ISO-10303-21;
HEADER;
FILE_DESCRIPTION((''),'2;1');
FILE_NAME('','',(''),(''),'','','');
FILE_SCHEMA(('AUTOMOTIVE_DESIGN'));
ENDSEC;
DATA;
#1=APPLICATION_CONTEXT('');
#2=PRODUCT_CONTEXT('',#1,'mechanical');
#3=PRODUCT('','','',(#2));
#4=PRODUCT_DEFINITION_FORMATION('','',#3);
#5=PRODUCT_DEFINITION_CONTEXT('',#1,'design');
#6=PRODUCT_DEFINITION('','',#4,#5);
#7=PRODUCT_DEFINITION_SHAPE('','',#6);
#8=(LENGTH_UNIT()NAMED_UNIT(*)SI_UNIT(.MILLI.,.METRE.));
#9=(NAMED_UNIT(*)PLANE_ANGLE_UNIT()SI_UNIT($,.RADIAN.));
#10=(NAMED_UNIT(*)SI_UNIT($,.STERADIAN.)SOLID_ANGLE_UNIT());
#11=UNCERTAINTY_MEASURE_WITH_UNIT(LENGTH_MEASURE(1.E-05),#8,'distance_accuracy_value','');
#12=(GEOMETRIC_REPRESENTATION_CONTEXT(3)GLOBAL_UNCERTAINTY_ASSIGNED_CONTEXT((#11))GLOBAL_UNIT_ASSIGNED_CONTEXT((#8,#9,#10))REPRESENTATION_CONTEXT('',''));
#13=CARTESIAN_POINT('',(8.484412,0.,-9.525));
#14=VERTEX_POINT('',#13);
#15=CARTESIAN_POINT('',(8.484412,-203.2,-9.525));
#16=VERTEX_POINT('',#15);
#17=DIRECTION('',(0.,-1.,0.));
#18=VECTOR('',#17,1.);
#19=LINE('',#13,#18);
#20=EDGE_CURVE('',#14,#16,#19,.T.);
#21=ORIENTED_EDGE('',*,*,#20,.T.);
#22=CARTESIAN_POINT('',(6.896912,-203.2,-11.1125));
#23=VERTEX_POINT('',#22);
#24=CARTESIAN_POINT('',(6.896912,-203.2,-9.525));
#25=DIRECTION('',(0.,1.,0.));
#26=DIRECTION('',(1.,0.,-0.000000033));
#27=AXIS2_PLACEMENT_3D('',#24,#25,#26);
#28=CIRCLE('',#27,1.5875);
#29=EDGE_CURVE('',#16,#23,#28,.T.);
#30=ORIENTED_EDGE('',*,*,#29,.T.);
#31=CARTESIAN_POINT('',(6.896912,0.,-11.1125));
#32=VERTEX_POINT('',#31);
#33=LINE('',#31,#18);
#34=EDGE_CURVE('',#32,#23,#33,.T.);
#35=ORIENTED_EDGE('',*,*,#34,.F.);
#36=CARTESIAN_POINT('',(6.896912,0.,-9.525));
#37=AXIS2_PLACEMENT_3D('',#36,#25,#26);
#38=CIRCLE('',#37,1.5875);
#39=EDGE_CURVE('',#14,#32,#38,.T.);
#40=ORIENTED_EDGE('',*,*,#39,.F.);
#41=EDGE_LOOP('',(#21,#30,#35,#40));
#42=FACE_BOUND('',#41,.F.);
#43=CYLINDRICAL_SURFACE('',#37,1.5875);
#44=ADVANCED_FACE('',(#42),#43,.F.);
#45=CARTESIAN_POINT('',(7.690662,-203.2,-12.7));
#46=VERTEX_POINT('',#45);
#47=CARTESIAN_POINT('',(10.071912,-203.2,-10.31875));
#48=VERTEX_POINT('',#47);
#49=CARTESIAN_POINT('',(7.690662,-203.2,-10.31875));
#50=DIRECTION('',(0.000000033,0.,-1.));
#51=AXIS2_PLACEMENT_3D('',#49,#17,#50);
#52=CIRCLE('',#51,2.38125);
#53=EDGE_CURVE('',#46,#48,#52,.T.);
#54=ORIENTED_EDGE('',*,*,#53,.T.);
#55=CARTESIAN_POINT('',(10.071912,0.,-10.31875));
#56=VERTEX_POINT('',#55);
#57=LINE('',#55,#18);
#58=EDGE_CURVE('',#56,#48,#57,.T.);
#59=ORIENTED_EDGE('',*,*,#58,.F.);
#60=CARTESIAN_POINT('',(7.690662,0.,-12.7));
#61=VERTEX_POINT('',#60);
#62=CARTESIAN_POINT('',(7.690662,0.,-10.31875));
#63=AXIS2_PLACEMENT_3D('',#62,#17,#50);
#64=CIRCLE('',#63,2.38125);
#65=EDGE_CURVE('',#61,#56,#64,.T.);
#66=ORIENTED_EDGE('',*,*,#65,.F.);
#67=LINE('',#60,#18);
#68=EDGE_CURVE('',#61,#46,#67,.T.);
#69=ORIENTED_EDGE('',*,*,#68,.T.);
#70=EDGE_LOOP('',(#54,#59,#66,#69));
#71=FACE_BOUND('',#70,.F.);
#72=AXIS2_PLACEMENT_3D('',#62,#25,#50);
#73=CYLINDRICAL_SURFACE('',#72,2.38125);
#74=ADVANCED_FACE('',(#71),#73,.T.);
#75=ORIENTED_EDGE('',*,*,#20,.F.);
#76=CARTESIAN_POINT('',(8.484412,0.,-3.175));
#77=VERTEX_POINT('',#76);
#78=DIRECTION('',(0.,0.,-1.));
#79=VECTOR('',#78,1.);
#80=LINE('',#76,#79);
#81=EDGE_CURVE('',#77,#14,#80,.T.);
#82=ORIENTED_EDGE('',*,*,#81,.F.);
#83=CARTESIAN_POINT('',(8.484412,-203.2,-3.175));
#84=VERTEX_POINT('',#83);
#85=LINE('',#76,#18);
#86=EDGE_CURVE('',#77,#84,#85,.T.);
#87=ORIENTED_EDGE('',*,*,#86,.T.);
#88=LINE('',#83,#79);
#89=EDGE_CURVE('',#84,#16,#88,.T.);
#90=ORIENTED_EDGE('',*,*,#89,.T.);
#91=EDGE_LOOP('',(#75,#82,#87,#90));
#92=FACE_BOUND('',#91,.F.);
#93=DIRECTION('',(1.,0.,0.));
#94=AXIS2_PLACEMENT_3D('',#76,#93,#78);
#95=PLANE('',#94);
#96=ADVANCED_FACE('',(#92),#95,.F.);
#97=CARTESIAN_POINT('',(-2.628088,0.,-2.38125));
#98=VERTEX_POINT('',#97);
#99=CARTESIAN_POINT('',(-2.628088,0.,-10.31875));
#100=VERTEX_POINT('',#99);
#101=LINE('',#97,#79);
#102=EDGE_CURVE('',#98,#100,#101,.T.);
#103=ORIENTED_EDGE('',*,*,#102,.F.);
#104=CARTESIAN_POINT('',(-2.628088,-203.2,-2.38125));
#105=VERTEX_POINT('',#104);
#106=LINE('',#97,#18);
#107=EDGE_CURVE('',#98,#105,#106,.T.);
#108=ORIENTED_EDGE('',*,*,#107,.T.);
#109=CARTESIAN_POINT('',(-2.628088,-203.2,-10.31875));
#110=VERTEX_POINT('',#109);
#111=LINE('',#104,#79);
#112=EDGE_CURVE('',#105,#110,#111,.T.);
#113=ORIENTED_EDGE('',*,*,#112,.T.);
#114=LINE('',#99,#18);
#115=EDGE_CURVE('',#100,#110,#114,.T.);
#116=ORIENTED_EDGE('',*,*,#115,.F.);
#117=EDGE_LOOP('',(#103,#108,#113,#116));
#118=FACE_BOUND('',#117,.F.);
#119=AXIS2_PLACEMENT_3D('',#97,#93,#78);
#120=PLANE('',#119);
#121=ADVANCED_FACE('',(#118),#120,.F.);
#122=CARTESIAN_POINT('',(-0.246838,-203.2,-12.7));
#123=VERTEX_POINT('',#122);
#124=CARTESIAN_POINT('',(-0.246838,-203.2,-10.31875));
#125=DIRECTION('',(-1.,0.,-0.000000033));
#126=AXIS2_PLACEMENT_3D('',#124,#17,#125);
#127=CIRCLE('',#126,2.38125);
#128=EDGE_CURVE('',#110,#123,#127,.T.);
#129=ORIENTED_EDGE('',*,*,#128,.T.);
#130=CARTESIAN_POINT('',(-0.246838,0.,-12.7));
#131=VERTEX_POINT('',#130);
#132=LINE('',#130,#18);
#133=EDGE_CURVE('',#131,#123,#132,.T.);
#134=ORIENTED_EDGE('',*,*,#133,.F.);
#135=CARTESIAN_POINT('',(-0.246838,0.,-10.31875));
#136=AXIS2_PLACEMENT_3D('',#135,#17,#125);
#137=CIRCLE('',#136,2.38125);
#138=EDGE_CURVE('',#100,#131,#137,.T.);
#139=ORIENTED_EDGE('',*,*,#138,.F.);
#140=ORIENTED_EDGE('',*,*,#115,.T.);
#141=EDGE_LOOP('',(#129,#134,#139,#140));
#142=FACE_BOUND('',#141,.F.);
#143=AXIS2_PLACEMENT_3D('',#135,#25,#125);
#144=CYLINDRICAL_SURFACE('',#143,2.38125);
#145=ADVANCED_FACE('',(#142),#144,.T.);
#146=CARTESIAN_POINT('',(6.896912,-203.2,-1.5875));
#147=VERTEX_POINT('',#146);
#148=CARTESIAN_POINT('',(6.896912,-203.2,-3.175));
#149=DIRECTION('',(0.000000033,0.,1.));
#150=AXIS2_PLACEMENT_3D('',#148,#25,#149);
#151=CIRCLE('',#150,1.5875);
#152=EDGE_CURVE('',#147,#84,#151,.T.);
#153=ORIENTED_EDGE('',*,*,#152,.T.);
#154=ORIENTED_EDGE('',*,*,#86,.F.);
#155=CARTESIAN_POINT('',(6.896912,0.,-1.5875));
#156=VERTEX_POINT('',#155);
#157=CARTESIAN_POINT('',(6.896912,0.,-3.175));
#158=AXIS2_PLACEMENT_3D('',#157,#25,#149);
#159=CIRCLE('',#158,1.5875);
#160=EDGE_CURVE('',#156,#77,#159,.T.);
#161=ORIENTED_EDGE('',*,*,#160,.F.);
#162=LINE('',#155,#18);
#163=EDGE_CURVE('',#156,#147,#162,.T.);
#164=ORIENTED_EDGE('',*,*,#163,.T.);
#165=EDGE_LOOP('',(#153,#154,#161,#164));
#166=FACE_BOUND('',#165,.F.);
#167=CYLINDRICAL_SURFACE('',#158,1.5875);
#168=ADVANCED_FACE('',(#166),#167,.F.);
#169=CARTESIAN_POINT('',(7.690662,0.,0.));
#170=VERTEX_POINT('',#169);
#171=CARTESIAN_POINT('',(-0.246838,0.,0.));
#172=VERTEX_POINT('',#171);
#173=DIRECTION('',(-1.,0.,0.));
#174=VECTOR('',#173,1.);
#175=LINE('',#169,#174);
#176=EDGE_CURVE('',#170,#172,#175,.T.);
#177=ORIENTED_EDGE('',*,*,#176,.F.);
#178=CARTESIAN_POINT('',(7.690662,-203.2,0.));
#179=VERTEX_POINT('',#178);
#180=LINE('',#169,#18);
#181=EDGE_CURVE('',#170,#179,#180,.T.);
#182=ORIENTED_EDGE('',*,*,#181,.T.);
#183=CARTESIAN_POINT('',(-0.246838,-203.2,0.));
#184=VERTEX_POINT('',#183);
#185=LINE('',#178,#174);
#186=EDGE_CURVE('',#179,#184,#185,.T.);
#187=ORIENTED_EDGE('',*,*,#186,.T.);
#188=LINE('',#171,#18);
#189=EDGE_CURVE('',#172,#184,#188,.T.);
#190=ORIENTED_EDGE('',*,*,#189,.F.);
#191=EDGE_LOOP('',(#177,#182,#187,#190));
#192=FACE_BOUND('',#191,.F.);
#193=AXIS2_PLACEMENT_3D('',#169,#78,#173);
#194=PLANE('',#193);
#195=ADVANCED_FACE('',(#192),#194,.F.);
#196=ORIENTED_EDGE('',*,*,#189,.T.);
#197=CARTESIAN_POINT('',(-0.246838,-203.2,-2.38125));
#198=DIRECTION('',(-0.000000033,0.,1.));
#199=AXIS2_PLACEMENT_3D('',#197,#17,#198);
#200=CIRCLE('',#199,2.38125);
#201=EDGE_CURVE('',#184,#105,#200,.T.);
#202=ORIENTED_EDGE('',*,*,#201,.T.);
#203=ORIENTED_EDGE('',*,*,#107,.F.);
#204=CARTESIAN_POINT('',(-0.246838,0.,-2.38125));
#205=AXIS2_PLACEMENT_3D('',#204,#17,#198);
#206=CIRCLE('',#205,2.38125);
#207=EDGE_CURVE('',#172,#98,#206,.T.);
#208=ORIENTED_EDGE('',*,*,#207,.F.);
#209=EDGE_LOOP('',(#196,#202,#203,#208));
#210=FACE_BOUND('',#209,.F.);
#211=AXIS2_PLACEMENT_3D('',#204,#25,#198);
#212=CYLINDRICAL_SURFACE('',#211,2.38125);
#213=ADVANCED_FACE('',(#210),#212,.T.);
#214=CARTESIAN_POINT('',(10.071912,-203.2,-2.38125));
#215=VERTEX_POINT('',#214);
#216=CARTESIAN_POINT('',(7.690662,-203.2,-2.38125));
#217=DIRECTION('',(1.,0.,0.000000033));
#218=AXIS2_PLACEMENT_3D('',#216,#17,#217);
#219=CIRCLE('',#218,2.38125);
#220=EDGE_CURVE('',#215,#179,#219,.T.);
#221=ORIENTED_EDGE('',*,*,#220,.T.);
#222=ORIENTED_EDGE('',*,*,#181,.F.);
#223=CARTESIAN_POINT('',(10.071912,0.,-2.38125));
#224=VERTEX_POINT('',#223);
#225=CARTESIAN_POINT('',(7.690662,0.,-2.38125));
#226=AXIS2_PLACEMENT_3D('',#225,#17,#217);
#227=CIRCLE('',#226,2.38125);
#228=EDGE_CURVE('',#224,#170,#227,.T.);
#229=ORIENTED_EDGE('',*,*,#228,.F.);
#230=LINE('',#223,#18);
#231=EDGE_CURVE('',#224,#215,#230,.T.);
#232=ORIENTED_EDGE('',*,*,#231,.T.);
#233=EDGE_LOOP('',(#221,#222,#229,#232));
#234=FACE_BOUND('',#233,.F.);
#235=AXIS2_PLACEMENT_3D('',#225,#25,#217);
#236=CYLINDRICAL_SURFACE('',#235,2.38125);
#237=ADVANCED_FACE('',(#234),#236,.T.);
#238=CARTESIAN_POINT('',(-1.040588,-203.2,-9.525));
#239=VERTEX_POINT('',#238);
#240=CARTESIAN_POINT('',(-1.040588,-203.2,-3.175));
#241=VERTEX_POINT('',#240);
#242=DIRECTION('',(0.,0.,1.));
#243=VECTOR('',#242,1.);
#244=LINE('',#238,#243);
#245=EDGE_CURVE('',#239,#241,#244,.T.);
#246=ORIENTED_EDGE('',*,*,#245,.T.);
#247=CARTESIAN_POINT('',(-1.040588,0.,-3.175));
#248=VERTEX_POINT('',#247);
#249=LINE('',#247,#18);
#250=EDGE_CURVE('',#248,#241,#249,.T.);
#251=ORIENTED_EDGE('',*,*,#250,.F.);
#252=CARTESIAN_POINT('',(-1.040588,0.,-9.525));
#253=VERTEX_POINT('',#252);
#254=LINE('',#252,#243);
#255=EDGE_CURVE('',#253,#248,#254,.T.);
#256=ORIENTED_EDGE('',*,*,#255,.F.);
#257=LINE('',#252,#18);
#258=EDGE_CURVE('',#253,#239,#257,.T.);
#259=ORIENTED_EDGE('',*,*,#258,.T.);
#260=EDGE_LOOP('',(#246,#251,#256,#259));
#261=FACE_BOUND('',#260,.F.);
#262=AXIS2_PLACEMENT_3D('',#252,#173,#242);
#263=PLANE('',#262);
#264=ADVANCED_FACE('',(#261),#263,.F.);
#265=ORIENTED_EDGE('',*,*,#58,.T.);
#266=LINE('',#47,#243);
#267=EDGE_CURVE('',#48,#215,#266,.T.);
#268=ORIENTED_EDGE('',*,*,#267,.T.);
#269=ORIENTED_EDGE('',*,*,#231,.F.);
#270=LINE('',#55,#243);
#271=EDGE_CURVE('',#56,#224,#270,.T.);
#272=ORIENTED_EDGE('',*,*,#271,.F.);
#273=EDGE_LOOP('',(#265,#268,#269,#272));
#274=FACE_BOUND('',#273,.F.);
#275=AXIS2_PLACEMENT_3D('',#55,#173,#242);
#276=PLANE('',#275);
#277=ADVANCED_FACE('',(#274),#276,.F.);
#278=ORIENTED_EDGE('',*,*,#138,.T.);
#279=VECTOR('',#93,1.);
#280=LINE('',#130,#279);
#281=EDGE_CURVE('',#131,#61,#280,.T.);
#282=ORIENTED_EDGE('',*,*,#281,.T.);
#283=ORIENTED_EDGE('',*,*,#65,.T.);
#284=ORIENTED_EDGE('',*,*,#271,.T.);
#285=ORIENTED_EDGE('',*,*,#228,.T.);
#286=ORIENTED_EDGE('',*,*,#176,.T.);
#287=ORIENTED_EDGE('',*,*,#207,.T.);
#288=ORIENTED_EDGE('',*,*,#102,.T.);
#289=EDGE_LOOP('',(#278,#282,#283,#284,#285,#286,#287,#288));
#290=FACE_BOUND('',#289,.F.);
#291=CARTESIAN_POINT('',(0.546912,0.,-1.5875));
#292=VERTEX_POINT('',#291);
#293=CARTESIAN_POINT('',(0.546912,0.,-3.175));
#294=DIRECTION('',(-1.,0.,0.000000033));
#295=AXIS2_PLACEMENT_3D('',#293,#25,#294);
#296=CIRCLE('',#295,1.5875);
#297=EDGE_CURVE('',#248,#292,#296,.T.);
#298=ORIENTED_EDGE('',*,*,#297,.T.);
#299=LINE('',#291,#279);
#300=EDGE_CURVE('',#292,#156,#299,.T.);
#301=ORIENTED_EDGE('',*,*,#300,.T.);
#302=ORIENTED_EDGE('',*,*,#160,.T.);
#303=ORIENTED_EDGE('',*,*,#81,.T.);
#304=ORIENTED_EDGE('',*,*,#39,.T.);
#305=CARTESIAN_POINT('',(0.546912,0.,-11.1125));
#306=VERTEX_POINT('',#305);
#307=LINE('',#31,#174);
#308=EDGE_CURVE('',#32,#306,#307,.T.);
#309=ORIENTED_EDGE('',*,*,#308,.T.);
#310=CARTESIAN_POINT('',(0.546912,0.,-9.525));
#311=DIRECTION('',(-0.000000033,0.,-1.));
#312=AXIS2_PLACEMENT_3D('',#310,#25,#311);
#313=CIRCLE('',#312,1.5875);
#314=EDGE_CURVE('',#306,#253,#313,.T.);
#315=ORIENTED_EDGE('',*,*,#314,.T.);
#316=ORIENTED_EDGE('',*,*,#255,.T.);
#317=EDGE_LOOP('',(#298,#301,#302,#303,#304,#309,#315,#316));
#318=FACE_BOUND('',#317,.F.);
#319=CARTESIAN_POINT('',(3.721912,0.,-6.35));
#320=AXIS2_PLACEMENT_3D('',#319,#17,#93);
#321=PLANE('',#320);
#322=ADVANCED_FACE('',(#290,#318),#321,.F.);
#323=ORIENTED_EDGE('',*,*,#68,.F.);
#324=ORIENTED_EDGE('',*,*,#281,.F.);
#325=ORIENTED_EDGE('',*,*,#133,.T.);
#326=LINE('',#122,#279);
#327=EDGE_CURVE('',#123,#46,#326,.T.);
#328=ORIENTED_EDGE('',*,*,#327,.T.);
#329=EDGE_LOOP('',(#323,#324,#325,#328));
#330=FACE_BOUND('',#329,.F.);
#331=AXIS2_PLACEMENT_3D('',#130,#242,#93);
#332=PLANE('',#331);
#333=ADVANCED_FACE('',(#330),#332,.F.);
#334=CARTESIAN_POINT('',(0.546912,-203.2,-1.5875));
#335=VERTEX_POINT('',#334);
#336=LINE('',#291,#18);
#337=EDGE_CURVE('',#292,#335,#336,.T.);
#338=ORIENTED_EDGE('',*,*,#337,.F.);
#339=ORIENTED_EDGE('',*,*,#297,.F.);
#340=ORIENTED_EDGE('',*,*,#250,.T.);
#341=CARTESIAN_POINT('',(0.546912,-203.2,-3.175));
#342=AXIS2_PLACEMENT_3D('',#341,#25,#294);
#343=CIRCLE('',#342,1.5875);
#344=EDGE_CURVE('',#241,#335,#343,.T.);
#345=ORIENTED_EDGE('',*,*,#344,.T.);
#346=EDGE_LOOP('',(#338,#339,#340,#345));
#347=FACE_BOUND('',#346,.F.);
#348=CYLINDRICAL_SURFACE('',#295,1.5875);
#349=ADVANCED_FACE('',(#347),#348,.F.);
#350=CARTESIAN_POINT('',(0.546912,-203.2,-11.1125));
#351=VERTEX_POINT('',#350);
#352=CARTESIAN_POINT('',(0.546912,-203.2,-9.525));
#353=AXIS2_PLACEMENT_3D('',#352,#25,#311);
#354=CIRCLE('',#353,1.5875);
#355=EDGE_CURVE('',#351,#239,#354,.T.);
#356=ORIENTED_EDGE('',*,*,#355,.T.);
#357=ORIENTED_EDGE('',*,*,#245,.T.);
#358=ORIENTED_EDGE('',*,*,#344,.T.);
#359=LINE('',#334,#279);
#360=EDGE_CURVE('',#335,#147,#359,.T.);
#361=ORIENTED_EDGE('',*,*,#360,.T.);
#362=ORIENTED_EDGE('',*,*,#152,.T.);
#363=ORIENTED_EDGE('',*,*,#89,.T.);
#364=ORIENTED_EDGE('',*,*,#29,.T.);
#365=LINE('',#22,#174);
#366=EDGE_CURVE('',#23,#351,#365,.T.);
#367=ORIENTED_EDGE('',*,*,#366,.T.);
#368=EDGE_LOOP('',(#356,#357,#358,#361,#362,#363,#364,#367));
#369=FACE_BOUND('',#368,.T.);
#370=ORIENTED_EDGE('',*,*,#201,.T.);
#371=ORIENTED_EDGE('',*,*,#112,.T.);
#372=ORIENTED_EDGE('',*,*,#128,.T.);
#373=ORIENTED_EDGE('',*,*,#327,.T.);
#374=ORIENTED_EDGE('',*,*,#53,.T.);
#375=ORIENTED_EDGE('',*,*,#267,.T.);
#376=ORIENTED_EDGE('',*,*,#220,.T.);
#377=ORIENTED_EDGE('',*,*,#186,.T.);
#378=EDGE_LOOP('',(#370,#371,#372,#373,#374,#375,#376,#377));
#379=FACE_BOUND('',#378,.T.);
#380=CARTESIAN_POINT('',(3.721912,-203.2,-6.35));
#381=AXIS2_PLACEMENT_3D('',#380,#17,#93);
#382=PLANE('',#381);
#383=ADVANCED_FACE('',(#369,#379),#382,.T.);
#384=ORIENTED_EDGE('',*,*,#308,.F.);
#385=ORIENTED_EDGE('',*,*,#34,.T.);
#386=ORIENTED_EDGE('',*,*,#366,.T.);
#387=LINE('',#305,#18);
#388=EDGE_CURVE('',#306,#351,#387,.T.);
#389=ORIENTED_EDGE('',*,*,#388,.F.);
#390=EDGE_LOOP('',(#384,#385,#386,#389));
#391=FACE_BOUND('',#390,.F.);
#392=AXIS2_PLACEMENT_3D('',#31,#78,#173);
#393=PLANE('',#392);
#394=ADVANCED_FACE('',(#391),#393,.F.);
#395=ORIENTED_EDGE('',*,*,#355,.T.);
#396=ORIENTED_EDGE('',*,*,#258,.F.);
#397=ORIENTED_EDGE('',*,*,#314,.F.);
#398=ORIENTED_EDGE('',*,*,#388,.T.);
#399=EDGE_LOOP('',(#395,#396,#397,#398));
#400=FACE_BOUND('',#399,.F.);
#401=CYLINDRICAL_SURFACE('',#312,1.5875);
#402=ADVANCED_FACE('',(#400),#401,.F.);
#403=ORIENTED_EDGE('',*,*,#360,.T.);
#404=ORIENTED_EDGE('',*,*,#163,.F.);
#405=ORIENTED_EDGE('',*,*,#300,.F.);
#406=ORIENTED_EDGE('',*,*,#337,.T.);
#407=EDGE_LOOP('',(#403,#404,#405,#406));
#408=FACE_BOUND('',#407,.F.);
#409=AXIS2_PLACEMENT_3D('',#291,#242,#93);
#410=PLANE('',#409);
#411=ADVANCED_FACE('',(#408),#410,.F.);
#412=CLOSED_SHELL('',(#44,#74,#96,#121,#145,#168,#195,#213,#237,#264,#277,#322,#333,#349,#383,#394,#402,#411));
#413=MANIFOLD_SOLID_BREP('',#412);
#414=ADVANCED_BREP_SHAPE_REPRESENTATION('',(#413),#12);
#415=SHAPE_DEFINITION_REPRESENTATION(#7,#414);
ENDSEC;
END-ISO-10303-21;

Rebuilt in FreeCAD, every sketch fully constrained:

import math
import FreeCAD as App
import Part
import Sketcher
from FreeCAD import Vector
Q = App.Units.Quantity

doc = App.newDocument("Part")
body = doc.addObject("PartDesign::Body", "Body")

# Sketch on XZ plane
sketch1 = doc.addObject("Sketcher::SketchObject", "Sketch")
body.addObject(sketch1)
sketch1.AttachmentSupport = (doc.XZ_Plane, [""])
sketch1.MapMode = "FlatFace"
sketch1.addGeometry([
    Part.ArcOfCircle(Part.Circle(Vector(7.7, -2.4, 0), Vector(0, 0, 1), 2.4), math.radians(0), math.radians(90)),  # 0
    Part.LineSegment(Vector(7.7, 0, 0), Vector(-0.2, 0, 0)),  # 1
    Part.ArcOfCircle(Part.Circle(Vector(-0.2, -2.4, 0), Vector(0, 0, 1), 2.4), math.radians(90), math.radians(180)),  # 2
    Part.LineSegment(Vector(-2.6, -2.4, 0), Vector(-2.6, -10.3, 0)),  # 3
    Part.ArcOfCircle(Part.Circle(Vector(-0.2, -10.3, 0), Vector(0, 0, 1), 2.4), math.radians(-180), math.radians(-90)),  # 4
    Part.LineSegment(Vector(-0.2, -12.7, 0), Vector(7.7, -12.7, 0)),  # 5
    Part.ArcOfCircle(Part.Circle(Vector(7.7, -10.3, 0), Vector(0, 0, 1), 2.4), math.radians(-90), math.radians(0)),  # 6
    Part.LineSegment(Vector(10.1, -10.3, 0), Vector(10.1, -2.4, 0)),  # 7
    Part.ArcOfCircle(Part.Circle(Vector(0.5, -3.2, 0), Vector(0, 0, 1), 1.6), math.radians(90), math.radians(180)),  # 8
    Part.LineSegment(Vector(0.5, -1.6, 0), Vector(6.9, -1.6, 0)),  # 9
    Part.ArcOfCircle(Part.Circle(Vector(6.9, -3.2, 0), Vector(0, 0, 1), 1.6), math.radians(0), math.radians(90)),  # 10
    Part.LineSegment(Vector(8.5, -3.2, 0), Vector(8.5, -9.5, 0)),  # 11
    Part.ArcOfCircle(Part.Circle(Vector(6.9, -9.5, 0), Vector(0, 0, 1), 1.6), math.radians(-90), math.radians(0)),  # 12
    Part.LineSegment(Vector(6.9, -11.1, 0), Vector(0.5, -11.1, 0)),  # 13
    Part.ArcOfCircle(Part.Circle(Vector(0.5, -9.5, 0), Vector(0, 0, 1), 1.6), math.radians(-180), math.radians(-90)),  # 14
    Part.LineSegment(Vector(-1, -9.5, 0), Vector(-1, -3.2, 0)),  # 15
], False)
sketch1.addConstraint([
    Sketcher.Constraint("Tangent", 0, 2, 1, 1),
    Sketcher.Constraint("Tangent", 1, 2, 2, 1),
    Sketcher.Constraint("Tangent", 2, 2, 3, 1),
    Sketcher.Constraint("Tangent", 3, 2, 4, 1),
    Sketcher.Constraint("Tangent", 4, 2, 5, 1),
    Sketcher.Constraint("Tangent", 5, 2, 6, 1),
    Sketcher.Constraint("Tangent", 6, 2, 7, 1),
    Sketcher.Constraint("Tangent", 7, 2, 0, 1),
    Sketcher.Constraint("Tangent", 8, 1, 9, 1),
    Sketcher.Constraint("Tangent", 9, 2, 10, 2),
    Sketcher.Constraint("Tangent", 10, 1, 11, 1),
    Sketcher.Constraint("Tangent", 11, 2, 12, 2),
    Sketcher.Constraint("Tangent", 12, 1, 13, 1),
    Sketcher.Constraint("Tangent", 13, 2, 14, 2),
    Sketcher.Constraint("Tangent", 14, 1, 15, 1),
    Sketcher.Constraint("Tangent", 15, 2, 8, 2),
    Sketcher.Constraint("Horizontal", 1),
    Sketcher.Constraint("Vertical", 3),
    Sketcher.Constraint("Horizontal", 5),
    Sketcher.Constraint("Vertical", 7),
    Sketcher.Constraint("Horizontal", 9),
    Sketcher.Constraint("Vertical", 11),
    Sketcher.Constraint("Horizontal", 13),
    Sketcher.Constraint("Vertical", 15),
    Sketcher.Constraint("Equal", 0, 2),
    Sketcher.Constraint("Equal", 2, 4),
    Sketcher.Constraint("Equal", 4, 6),
    Sketcher.Constraint("Equal", 8, 10),
    Sketcher.Constraint("Equal", 10, 12),
    Sketcher.Constraint("Equal", 12, 14),
    Sketcher.Constraint("PointOnObject", 0, 2, -1),
    Sketcher.Constraint("Equal", 5, 3),
    Sketcher.Constraint("Equal", 13, 11),
    Sketcher.Constraint("Radius", 0, Q("0.09375 in")),
    Sketcher.Constraint("Radius", 8, Q("0.0625 in")),
    Sketcher.Constraint("DistanceX", 9, 1, 9, 2, Q("0.25 in")),
    Sketcher.Constraint("DistanceY", 4, 2, -1, 1, Q("0.5 in")),
    Sketcher.Constraint("DistanceY", 8, 3, -1, 1, Q("0.125 in")),
    Sketcher.Constraint("DistanceX", 2, 3, 8, 3, Q("0.03125 in")),
    Sketcher.Constraint("DistanceX", -1, 1, 0, 3, Q("7.690662 mm")),
])
pad1 = doc.addObject("PartDesign::Pad", "Pad")
body.addObject(pad1)
pad1.Profile = sketch1
pad1.Length = Q("8 in")

doc.recompute()
